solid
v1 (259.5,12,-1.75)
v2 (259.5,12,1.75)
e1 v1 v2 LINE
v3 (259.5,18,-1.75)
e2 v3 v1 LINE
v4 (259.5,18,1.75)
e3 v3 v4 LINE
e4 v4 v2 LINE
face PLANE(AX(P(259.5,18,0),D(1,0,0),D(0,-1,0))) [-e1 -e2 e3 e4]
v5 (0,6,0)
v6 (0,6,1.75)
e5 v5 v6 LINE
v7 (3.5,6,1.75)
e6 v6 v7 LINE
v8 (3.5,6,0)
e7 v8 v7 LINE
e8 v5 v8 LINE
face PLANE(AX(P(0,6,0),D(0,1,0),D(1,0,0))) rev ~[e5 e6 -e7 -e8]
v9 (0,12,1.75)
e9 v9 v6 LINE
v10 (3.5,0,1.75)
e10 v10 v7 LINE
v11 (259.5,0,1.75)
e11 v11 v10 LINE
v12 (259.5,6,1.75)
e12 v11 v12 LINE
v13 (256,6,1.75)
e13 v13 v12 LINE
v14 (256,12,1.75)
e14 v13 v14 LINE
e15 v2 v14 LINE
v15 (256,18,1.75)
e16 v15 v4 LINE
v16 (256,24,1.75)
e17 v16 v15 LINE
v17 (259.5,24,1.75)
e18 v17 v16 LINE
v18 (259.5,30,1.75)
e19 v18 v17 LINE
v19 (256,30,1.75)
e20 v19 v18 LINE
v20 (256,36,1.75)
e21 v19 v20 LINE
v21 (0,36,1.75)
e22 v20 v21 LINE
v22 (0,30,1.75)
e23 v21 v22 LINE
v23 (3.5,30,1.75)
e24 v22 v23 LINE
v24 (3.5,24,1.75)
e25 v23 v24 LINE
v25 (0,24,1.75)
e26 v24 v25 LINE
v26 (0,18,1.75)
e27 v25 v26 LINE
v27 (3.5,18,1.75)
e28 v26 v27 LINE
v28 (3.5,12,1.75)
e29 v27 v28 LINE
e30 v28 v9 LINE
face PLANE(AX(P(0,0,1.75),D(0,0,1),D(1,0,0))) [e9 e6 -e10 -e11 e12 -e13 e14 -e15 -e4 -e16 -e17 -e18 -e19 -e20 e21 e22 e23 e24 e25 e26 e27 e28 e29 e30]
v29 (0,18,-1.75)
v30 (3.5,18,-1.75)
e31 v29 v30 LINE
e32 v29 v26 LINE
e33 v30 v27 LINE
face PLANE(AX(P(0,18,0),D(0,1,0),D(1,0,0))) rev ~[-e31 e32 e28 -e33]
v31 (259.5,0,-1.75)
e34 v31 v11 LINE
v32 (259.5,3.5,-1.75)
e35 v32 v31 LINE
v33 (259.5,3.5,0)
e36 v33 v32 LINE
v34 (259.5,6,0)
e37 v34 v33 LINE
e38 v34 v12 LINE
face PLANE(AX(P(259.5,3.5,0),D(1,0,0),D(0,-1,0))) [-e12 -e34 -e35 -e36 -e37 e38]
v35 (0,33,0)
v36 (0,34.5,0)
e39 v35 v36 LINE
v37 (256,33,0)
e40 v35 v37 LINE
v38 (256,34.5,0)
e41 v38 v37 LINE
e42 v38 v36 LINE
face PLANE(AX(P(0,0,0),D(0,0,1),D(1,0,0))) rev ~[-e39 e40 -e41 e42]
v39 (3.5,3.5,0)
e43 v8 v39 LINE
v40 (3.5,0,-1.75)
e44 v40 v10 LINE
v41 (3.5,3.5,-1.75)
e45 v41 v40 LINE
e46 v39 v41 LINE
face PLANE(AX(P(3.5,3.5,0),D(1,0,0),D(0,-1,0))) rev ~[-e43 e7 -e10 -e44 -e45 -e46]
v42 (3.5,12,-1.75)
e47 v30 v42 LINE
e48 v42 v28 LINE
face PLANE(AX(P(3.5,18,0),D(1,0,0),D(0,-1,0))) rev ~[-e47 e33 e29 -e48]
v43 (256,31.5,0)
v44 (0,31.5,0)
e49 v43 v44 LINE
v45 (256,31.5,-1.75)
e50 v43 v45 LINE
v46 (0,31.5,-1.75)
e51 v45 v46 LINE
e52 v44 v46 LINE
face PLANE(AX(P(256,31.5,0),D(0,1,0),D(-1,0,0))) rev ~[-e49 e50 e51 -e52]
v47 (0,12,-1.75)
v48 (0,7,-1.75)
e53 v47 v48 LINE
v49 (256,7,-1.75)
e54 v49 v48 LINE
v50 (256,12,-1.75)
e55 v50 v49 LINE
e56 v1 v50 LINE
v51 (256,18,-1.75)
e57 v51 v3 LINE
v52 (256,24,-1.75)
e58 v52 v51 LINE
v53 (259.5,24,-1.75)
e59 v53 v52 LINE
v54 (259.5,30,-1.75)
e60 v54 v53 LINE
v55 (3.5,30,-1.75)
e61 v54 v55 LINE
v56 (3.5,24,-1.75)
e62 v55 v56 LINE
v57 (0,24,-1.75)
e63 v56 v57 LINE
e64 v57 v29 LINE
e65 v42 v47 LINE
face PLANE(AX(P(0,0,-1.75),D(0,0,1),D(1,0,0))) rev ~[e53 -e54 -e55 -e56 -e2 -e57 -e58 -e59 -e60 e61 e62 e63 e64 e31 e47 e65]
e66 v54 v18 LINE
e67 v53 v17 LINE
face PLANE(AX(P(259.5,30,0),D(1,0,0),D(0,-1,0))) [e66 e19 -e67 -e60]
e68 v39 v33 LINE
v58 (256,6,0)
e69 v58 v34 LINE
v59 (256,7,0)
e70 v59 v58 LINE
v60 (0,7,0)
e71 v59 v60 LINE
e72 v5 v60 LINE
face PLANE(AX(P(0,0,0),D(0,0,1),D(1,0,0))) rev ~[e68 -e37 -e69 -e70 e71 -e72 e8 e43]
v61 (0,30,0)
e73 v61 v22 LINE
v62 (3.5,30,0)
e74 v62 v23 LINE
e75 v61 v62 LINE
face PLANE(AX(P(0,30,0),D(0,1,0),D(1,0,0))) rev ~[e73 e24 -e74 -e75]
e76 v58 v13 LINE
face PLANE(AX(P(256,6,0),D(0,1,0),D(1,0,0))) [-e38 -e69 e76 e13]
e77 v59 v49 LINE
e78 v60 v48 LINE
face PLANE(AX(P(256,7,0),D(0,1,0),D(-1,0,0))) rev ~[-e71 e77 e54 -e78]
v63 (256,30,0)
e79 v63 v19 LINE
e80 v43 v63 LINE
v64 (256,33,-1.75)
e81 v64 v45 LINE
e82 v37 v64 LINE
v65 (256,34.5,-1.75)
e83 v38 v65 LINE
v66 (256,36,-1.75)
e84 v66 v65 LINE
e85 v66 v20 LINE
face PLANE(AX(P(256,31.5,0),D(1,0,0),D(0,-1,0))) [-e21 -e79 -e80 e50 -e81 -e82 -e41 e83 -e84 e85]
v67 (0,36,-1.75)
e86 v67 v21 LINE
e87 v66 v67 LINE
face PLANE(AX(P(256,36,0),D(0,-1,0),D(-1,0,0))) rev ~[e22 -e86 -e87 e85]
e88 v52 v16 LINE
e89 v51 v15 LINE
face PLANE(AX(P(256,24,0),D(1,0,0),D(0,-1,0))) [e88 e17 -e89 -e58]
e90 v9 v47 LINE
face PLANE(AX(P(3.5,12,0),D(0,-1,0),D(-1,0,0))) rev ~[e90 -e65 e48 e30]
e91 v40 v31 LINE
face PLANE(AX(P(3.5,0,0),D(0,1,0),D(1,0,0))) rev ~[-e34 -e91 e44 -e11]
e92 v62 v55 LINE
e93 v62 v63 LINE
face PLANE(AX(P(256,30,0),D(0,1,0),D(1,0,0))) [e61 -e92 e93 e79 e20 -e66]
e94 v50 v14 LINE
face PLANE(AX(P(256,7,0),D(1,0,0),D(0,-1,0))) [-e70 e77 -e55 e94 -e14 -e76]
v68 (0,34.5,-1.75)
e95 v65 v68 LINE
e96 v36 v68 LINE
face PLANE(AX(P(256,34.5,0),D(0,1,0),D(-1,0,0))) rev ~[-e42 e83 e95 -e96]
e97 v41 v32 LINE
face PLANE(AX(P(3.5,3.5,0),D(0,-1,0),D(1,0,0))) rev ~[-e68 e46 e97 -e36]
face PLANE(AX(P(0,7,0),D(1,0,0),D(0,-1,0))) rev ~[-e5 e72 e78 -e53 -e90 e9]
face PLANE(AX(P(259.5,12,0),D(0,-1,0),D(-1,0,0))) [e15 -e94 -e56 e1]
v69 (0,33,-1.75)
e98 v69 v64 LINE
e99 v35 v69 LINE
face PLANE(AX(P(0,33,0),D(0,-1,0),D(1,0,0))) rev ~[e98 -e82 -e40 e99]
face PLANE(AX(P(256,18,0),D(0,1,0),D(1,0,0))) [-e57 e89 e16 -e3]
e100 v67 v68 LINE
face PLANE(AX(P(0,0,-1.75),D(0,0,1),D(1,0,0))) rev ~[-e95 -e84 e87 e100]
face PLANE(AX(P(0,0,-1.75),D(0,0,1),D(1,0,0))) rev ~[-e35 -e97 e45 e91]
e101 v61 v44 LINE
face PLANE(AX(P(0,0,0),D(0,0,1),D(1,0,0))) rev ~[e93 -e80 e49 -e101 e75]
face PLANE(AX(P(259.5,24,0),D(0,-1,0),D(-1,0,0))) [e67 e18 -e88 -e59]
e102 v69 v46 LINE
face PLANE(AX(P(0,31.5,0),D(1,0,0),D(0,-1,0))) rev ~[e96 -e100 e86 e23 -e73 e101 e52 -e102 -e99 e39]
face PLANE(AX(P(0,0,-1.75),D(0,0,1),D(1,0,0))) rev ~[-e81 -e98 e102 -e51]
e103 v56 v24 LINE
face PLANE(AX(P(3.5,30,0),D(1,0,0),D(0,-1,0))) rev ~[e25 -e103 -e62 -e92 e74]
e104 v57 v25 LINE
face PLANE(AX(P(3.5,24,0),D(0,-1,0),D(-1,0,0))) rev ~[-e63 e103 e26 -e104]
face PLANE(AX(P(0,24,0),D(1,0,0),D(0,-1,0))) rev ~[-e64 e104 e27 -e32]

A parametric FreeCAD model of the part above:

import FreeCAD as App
import Part
import Sketcher

V = App.Vector

doc = App.newDocument("Part")
body = doc.addObject("PartDesign::Body", "Body")

sketch1 = body.newObject("Sketcher::SketchObject", "Sketch")
sketch1.AttachmentSupport = (doc.getObject("XY_Plane"), [""])
sketch1.MapMode = "FlatFace"
sketch1.addGeometry(Part.LineSegment(V(3.5, 0, 0), V(259.5, 0, 0)), False)
sketch1.addGeometry(Part.LineSegment(V(259.5, 0, 0), V(259.5, 6, 0)), False)
sketch1.addGeometry(Part.LineSegment(V(259.5, 6, 0), V(256, 6, 0)), False)
sketch1.addGeometry(Part.LineSegment(V(256, 6, 0), V(256, 12, 0)), False)
sketch1.addGeometry(Part.LineSegment(V(256, 12, 0), V(259.5, 12, 0)), False)
sketch1.addGeometry(Part.LineSegment(V(259.5, 12, 0), V(259.5, 18, 0)), False)
sketch1.addGeometry(Part.LineSegment(V(259.5, 18, 0), V(256, 18, 0)), False)
sketch1.addGeometry(Part.LineSegment(V(256, 18, 0), V(256, 24, 0)), False)
sketch1.addGeometry(Part.LineSegment(V(256, 24, 0), V(259.5, 24, 0)), False)
sketch1.addGeometry(Part.LineSegment(V(259.5, 24, 0), V(259.5, 30, 0)), False)
sketch1.addGeometry(Part.LineSegment(V(259.5, 30, 0), V(256, 30, 0)), False)
sketch1.addGeometry(Part.LineSegment(V(256, 30, 0), V(256, 36, 0)), False)
sketch1.addGeometry(Part.LineSegment(V(256, 36, 0), V(0, 36, 0)), False)
sketch1.addGeometry(Part.LineSegment(V(0, 36, 0), V(0, 30, 0)), False)
sketch1.addGeometry(Part.LineSegment(V(0, 30, 0), V(3.5, 30, 0)), False)
sketch1.addGeometry(Part.LineSegment(V(3.5, 30, 0), V(3.5, 24, 0)), False)
sketch1.addGeometry(Part.LineSegment(V(3.5, 24, 0), V(0, 24, 0)), False)
sketch1.addGeometry(Part.LineSegment(V(0, 24, 0), V(0, 18, 0)), False)
sketch1.addGeometry(Part.LineSegment(V(0, 18, 0), V(3.5, 18, 0)), False)
sketch1.addGeometry(Part.LineSegment(V(3.5, 18, 0), V(3.5, 12, 0)), False)
sketch1.addGeometry(Part.LineSegment(V(3.5, 12, 0), V(0, 12, 0)), False)
sketch1.addGeometry(Part.LineSegment(V(0, 12, 0), V(0, 6, 0)), False)
sketch1.addGeometry(Part.LineSegment(V(0, 6, 0), V(3.5, 6, 0)), False)
sketch1.addGeometry(Part.LineSegment(V(3.5, 6, 0), V(3.5, 0, 0)), False)
sketch1.addConstraint(Sketcher.Constraint("Coincident", 0, 2, 1, 1))
sketch1.addConstraint(Sketcher.Constraint("Coincident", 1, 2, 2, 1))
sketch1.addConstraint(Sketcher.Constraint("Coincident", 2, 2, 3, 1))
sketch1.addConstraint(Sketcher.Constraint("Coincident", 3, 2, 4, 1))
sketch1.addConstraint(Sketcher.Constraint("Coincident", 4, 2, 5, 1))
sketch1.addConstraint(Sketcher.Constraint("Coincident", 5, 2, 6, 1))
sketch1.addConstraint(Sketcher.Constraint("Coincident", 6, 2, 7, 1))
sketch1.addConstraint(Sketcher.Constraint("Coincident", 7, 2, 8, 1))
sketch1.addConstraint(Sketcher.Constraint("Coincident", 8, 2, 9, 1))
sketch1.addConstraint(Sketcher.Constraint("Coincident", 9, 2, 10, 1))
sketch1.addConstraint(Sketcher.Constraint("Coincident", 10, 2, 11, 1))
sketch1.addConstraint(Sketcher.Constraint("Coincident", 11, 2, 12, 1))
sketch1.addConstraint(Sketcher.Constraint("Coincident", 12, 2, 13, 1))
sketch1.addConstraint(Sketcher.Constraint("Coincident", 13, 2, 14, 1))
sketch1.addConstraint(Sketcher.Constraint("Coincident", 14, 2, 15, 1))
sketch1.addConstraint(Sketcher.Constraint("Coincident", 15, 2, 16, 1))
sketch1.addConstraint(Sketcher.Constraint("Coincident", 16, 2, 17, 1))
sketch1.addConstraint(Sketcher.Constraint("Coincident", 17, 2, 18, 1))
sketch1.addConstraint(Sketcher.Constraint("Coincident", 18, 2, 19, 1))
sketch1.addConstraint(Sketcher.Constraint("Coincident", 19, 2, 20, 1))
sketch1.addConstraint(Sketcher.Constraint("Coincident", 20, 2, 21, 1))
sketch1.addConstraint(Sketcher.Constraint("Coincident", 21, 2, 22, 1))
sketch1.addConstraint(Sketcher.Constraint("Coincident", 22, 2, 23, 1))
sketch1.addConstraint(Sketcher.Constraint("Coincident", 23, 2, 0, 1))
sketch1.addConstraint(Sketcher.Constraint("Horizontal", 0))
sketch1.addConstraint(Sketcher.Constraint("Vertical", 1))
sketch1.addConstraint(Sketcher.Constraint("Horizontal", 2))
sketch1.addConstraint(Sketcher.Constraint("Vertical", 3))
sketch1.addConstraint(Sketcher.Constraint("Horizontal", 4))
sketch1.addConstraint(Sketcher.Constraint("Vertical", 5))
sketch1.addConstraint(Sketcher.Constraint("Horizontal", 6))
sketch1.addConstraint(Sketcher.Constraint("Vertical", 7))
sketch1.addConstraint(Sketcher.Constraint("Horizontal", 8))
sketch1.addConstraint(Sketcher.Constraint("Vertical", 9))
sketch1.addConstraint(Sketcher.Constraint("Horizontal", 10))
sketch1.addConstraint(Sketcher.Constraint("Vertical", 11))
sketch1.addConstraint(Sketcher.Constraint("Horizontal", 12))
sketch1.addConstraint(Sketcher.Constraint("Vertical", 13))
sketch1.addConstraint(Sketcher.Constraint("Horizontal", 14))
sketch1.addConstraint(Sketcher.Constraint("Vertical", 15))
sketch1.addConstraint(Sketcher.Constraint("Horizontal", 16))
sketch1.addConstraint(Sketcher.Constraint("Vertical", 17))
sketch1.addConstraint(Sketcher.Constraint("Horizontal", 18))
sketch1.addConstraint(Sketcher.Constraint("Vertical", 19))
sketch1.addConstraint(Sketcher.Constraint("Horizontal", 20))
sketch1.addConstraint(Sketcher.Constraint("Vertical", 21))
sketch1.addConstraint(Sketcher.Constraint("Horizontal", 22))
sketch1.addConstraint(Sketcher.Constraint("Vertical", 23))
sketch1.addConstraint(Sketcher.Constraint("PointOnObject", 0, 2, -1))
sketch1.addConstraint(Sketcher.Constraint("PointOnObject", 12, 2, -2))
sketch1.addConstraint(Sketcher.Constraint("PointOnObject", 16, 2, -2))
sketch1.addConstraint(Sketcher.Constraint("PointOnObject", 20, 2, -2))
sketch1.addConstraint(Sketcher.Constraint("Horizontal", 10, 2, 13, 2))
sketch1.addConstraint(Sketcher.Constraint("Horizontal", 8, 2, 15, 2))
sketch1.addConstraint(Sketcher.Constraint("Horizontal", 6, 2, 17, 2))
sketch1.addConstraint(Sketcher.Constraint("Horizontal", 4, 2, 19, 2))
sketch1.addConstraint(Sketcher.Constraint("Horizontal", 2, 2, 21, 2))
sketch1.addConstraint(Sketcher.Constraint("Vertical", 1, 2, 4, 2))
sketch1.addConstraint(Sketcher.Constraint("Vertical", 3, 2, 6, 2))
sketch1.addConstraint(Sketcher.Constraint("Vertical", 5, 2, 8, 2))
sketch1.addConstraint(Sketcher.Constraint("Vertical", 7, 2, 10, 2))
sketch1.addConstraint(Sketcher.Constraint("Vertical", 15, 2, 18, 2))
sketch1.addConstraint(Sketcher.Constraint("Vertical", 19, 2, 22, 2))
sketch1.addConstraint(Sketcher.Constraint("Equal", 0, 12))
sketch1.addConstraint(Sketcher.Constraint("Equal", 1, 3))
sketch1.addConstraint(Sketcher.Constraint("Equal", 3, 5))
sketch1.addConstraint(Sketcher.Constraint("Equal", 5, 7))
sketch1.addConstraint(Sketcher.Constraint("Equal", 7, 9))
sketch1.addConstraint(Sketcher.Constraint("Equal", 9, 11))
sketch1.addConstraint(Sketcher.Constraint("DistanceX", 0, 1, 0, 2, 256.0))
sketch1.addConstraint(Sketcher.Constraint("DistanceX", 2, 2, 2, 1, 3.5))
sketch1.addConstraint(Sketcher.Constraint("DistanceY", -1, 1, 11, 2, 36.0))
pad1 = body.newObject("PartDesign::Pad", "Pad")
pad1.Profile = sketch1
pad1.Length = 1.75

sketch2 = body.newObject("Sketcher::SketchObject", "Sketch001")
sketch2.AttachmentSupport = (doc.getObject("XY_Plane"), [""])
sketch2.MapMode = "FlatFace"
sketch2.addGeometry(Part.LineSegment(V(3.5, 3.5, 0), V(3.5, 0, 0)), False)
sketch2.addGeometry(Part.LineSegment(V(3.5, 0, 0), V(259.5, 0, 0)), False)
sketch2.addGeometry(Part.LineSegment(V(259.5, 0, 0), V(259.5, 3.5, 0)), False)
sketch2.addGeometry(Part.LineSegment(V(259.5, 3.5, 0), V(3.5, 3.5, 0)), False)
sketch2.addGeometry(Part.LineSegment(V(0, 12, 0), V(0, 7, 0)), False)
sketch2.addGeometry(Part.LineSegment(V(0, 7, 0), V(256, 7, 0)), False)
sketch2.addGeometry(Part.LineSegment(V(256, 7, 0), V(256, 12, 0)), False)
sketch2.addGeometry(Part.LineSegment(V(256, 12, 0), V(259.5, 12, 0)), False)
sketch2.addGeometry(Part.LineSegment(V(259.5, 12, 0), V(259.5, 18, 0)), False)
sketch2.addGeometry(Part.LineSegment(V(259.5, 18, 0), V(256, 18, 0)), False)
sketch2.addGeometry(Part.LineSegment(V(256, 18, 0), V(256, 24, 0)), False)
sketch2.addGeometry(Part.LineSegment(V(256, 24, 0), V(259.5, 24, 0)), False)
sketch2.addGeometry(Part.LineSegment(V(259.5, 24, 0), V(259.5, 30, 0)), False)
sketch2.addGeometry(Part.LineSegment(V(259.5, 30, 0), V(3.5, 30, 0)), False)
sketch2.addGeometry(Part.LineSegment(V(3.5, 30, 0), V(3.5, 24, 0)), False)
sketch2.addGeometry(Part.LineSegment(V(3.5, 24, 0), V(0, 24, 0)), False)
sketch2.addGeometry(Part.LineSegment(V(0, 24, 0), V(0, 18, 0)), False)
sketch2.addGeometry(Part.LineSegment(V(0, 18, 0), V(3.5, 18, 0)), False)
sketch2.addGeometry(Part.LineSegment(V(3.5, 18, 0), V(3.5, 12, 0)), False)
sketch2.addGeometry(Part.LineSegment(V(3.5, 12, 0), V(0, 12, 0)), False)
sketch2.addGeometry(Part.LineSegment(V(0, 33, 0), V(0, 31.5, 0)), False)
sketch2.addGeometry(Part.LineSegment(V(0, 31.5, 0), V(256, 31.5, 0)), False)
sketch2.addGeometry(Part.LineSegment(V(256, 31.5, 0), V(256, 33, 0)), False)
sketch2.addGeometry(Part.LineSegment(V(256, 33, 0), V(0, 33, 0)), False)
sketch2.addGeometry(Part.LineSegment(V(0, 36, 0), V(0, 34.5, 0)), False)
sketch2.addGeometry(Part.LineSegment(V(0, 34.5, 0), V(256, 34.5, 0)), False)
sketch2.addGeometry(Part.LineSegment(V(256, 34.5, 0), V(256, 36, 0)), False)
sketch2.addGeometry(Part.LineSegment(V(256, 36, 0), V(0, 36, 0)), False)
sketch2.addConstraint(Sketcher.Constraint("Coincident", 0, 2, 1, 1))
sketch2.addConstraint(Sketcher.Constraint("Coincident", 1, 2, 2, 1))
sketch2.addConstraint(Sketcher.Constraint("Coincident", 2, 2, 3, 1))
sketch2.addConstraint(Sketcher.Constraint("Coincident", 3, 2, 0, 1))
sketch2.addConstraint(Sketcher.Constraint("Coincident", 4, 2, 5, 1))
sketch2.addConstraint(Sketcher.Constraint("Coincident", 5, 2, 6, 1))
sketch2.addConstraint(Sketcher.Constraint("Coincident", 6, 2, 7, 1))
sketch2.addConstraint(Sketcher.Constraint("Coincident", 7, 2, 8, 1))
sketch2.addConstraint(Sketcher.Constraint("Coincident", 8, 2, 9, 1))
sketch2.addConstraint(Sketcher.Constraint("Coincident", 9, 2, 10, 1))
sketch2.addConstraint(Sketcher.Constraint("Coincident", 10, 2, 11, 1))
sketch2.addConstraint(Sketcher.Constraint("Coincident", 11, 2, 12, 1))
sketch2.addConstraint(Sketcher.Constraint("Coincident", 12, 2, 13, 1))
sketch2.addConstraint(Sketcher.Constraint("Coincident", 13, 2, 14, 1))
sketch2.addConstraint(Sketcher.Constraint("Coincident", 14, 2, 15, 1))
sketch2.addConstraint(Sketcher.Constraint("Coincident", 15, 2, 16, 1))
sketch2.addConstraint(Sketcher.Constraint("Coincident", 16, 2, 17, 1))
sketch2.addConstraint(Sketcher.Constraint("Coincident", 17, 2, 18, 1))
sketch2.addConstraint(Sketcher.Constraint("Coincident", 18, 2, 19, 1))
sketch2.addConstraint(Sketcher.Constraint("Coincident", 19, 2, 4, 1))
sketch2.addConstraint(Sketcher.Constraint("Coincident", 20, 2, 21, 1))
sketch2.addConstraint(Sketcher.Constraint("Coincident", 21, 2, 22, 1))
sketch2.addConstraint(Sketcher.Constraint("Coincident", 22, 2, 23, 1))
sketch2.addConstraint(Sketcher.Constraint("Coincident", 23, 2, 20, 1))
sketch2.addConstraint(Sketcher.Constraint("Coincident", 24, 2, 25, 1))
sketch2.addConstraint(Sketcher.Constraint("Coincident", 25, 2, 26, 1))
sketch2.addConstraint(Sketcher.Constraint("Coincident", 26, 2, 27, 1))
sketch2.addConstraint(Sketcher.Constraint("Coincident", 27, 2, 24, 1))
sketch2.addConstraint(Sketcher.Constraint("Vertical", 0))
sketch2.addConstraint(Sketcher.Constraint("Horizontal", 1))
sketch2.addConstraint(Sketcher.Constraint("Vertical", 2))
sketch2.addConstraint(Sketcher.Constraint("Horizontal", 3))
sketch2.addConstraint(Sketcher.Constraint("Vertical", 4))
sketch2.addConstraint(Sketcher.Constraint("Horizontal", 5))
sketch2.addConstraint(Sketcher.Constraint("Vertical", 6))
sketch2.addConstraint(Sketcher.Constraint("Horizontal", 7))
sketch2.addConstraint(Sketcher.Constraint("Vertical", 8))
sketch2.addConstraint(Sketcher.Constraint("Horizontal", 9))
sketch2.addConstraint(Sketcher.Constraint("Vertical", 10))
sketch2.addConstraint(Sketcher.Constraint("Horizontal", 11))
sketch2.addConstraint(Sketcher.Constraint("Vertical", 12))
sketch2.addConstraint(Sketcher.Constraint("Horizontal", 13))
sketch2.addConstraint(Sketcher.Constraint("Vertical", 14))
sketch2.addConstraint(Sketcher.Constraint("Horizontal", 15))
sketch2.addConstraint(Sketcher.Constraint("Vertical", 16))
sketch2.addConstraint(Sketcher.Constraint("Horizontal", 17))
sketch2.addConstraint(Sketcher.Constraint("Vertical", 18))
sketch2.addConstraint(Sketcher.Constraint("Horizontal", 19))
sketch2.addConstraint(Sketcher.Constraint("Vertical", 20))
sketch2.addConstraint(Sketcher.Constraint("Horizontal", 21))
sketch2.addConstraint(Sketcher.Constraint("Vertical", 22))
sketch2.addConstraint(Sketcher.Constraint("Horizontal", 23))
sketch2.addConstraint(Sketcher.Constraint("Vertical", 24))
sketch2.addConstraint(Sketcher.Constraint("Horizontal", 25))
sketch2.addConstraint(Sketcher.Constraint("Vertical", 26))
sketch2.addConstraint(Sketcher.Constraint("Horizontal", 27))
sketch2.addConstraint(Sketcher.Constraint("PointOnObject", 0, 2, -1))
sketch2.addConstraint(Sketcher.Constraint("PointOnObject", 4, 2, -2))
sketch2.addConstraint(Sketcher.Constraint("PointOnObject", 15, 2, -2))
sketch2.addConstraint(Sketcher.Constraint("PointOnObject", 20, 2, -2))
sketch2.addConstraint(Sketcher.Constraint("PointOnObject", 24, 2, -2))
sketch2.addConstraint(Sketcher.Constraint("Horizontal", 11, 2, 14, 2))
sketch2.addConstraint(Sketcher.Constraint("Horizontal", 9, 2, 16, 2))
sketch2.addConstraint(Sketcher.Constraint("Horizontal", 7, 2, 18, 2))
sketch2.addConstraint(Sketcher.Constraint("Vertical", 2, 2, 7, 2))
sketch2.addConstraint(Sketcher.Constraint("Vertical", 6, 2, 9, 2))
sketch2.addConstraint(Sketcher.Constraint("Vertical", 8, 2, 11, 2))
sketch2.addConstraint(Sketcher.Constraint("Vertical", 3, 2, 13, 2))
sketch2.addConstraint(Sketcher.Constraint("Vertical", 14, 2, 17, 2))
sketch2.addConstraint(Sketcher.Constraint("Vertical", 10, 2, 21, 2))
sketch2.addConstraint(Sketcher.Constraint("Vertical", 22, 2, 25, 2))
sketch2.addConstraint(Sketcher.Constraint("Equal", 3, 5))
sketch2.addConstraint(Sketcher.Constraint("Equal", 19, 0))
sketch2.addConstraint(Sketcher.Constraint("Equal", 8, 10))
sketch2.addConstraint(Sketcher.Constraint("Equal", 10, 12))
sketch2.addConstraint(Sketcher.Constraint("Equal", 22, 24))
sketch2.addConstraint(Sketcher.Constraint("DistanceX", 1, 1, 1, 2, 256.0))
sketch2.addConstraint(Sketcher.Constraint("DistanceX", 7, 1, 7, 2, 3.5))
sketch2.addConstraint(Sketcher.Constraint("DistanceY", 20, 2, 20, 1, 1.5))
sketch2.addConstraint(Sketcher.Constraint("DistanceY", -1, 1, 26, 2, 36.0))
sketch2.addConstraint(Sketcher.Constraint("DistanceY", 3, 2, 4, 2, 3.5))
sketch2.addConstraint(Sketcher.Constraint("DistanceY", 13, 2, 20, 2, 1.5))
sketch2.addConstraint(Sketcher.Constraint("DistanceY", 23, 2, 24, 2, 1.5))
sketch2.addConstraint(Sketcher.Constraint("DistanceY", 4, 2, 4, 1, 5.0))
pad2 = body.newObject("PartDesign::Pad", "Pad001")
pad2.Profile = sketch2
pad2.Length = 1.75
pad2.Reversed = True

doc.recompute()
